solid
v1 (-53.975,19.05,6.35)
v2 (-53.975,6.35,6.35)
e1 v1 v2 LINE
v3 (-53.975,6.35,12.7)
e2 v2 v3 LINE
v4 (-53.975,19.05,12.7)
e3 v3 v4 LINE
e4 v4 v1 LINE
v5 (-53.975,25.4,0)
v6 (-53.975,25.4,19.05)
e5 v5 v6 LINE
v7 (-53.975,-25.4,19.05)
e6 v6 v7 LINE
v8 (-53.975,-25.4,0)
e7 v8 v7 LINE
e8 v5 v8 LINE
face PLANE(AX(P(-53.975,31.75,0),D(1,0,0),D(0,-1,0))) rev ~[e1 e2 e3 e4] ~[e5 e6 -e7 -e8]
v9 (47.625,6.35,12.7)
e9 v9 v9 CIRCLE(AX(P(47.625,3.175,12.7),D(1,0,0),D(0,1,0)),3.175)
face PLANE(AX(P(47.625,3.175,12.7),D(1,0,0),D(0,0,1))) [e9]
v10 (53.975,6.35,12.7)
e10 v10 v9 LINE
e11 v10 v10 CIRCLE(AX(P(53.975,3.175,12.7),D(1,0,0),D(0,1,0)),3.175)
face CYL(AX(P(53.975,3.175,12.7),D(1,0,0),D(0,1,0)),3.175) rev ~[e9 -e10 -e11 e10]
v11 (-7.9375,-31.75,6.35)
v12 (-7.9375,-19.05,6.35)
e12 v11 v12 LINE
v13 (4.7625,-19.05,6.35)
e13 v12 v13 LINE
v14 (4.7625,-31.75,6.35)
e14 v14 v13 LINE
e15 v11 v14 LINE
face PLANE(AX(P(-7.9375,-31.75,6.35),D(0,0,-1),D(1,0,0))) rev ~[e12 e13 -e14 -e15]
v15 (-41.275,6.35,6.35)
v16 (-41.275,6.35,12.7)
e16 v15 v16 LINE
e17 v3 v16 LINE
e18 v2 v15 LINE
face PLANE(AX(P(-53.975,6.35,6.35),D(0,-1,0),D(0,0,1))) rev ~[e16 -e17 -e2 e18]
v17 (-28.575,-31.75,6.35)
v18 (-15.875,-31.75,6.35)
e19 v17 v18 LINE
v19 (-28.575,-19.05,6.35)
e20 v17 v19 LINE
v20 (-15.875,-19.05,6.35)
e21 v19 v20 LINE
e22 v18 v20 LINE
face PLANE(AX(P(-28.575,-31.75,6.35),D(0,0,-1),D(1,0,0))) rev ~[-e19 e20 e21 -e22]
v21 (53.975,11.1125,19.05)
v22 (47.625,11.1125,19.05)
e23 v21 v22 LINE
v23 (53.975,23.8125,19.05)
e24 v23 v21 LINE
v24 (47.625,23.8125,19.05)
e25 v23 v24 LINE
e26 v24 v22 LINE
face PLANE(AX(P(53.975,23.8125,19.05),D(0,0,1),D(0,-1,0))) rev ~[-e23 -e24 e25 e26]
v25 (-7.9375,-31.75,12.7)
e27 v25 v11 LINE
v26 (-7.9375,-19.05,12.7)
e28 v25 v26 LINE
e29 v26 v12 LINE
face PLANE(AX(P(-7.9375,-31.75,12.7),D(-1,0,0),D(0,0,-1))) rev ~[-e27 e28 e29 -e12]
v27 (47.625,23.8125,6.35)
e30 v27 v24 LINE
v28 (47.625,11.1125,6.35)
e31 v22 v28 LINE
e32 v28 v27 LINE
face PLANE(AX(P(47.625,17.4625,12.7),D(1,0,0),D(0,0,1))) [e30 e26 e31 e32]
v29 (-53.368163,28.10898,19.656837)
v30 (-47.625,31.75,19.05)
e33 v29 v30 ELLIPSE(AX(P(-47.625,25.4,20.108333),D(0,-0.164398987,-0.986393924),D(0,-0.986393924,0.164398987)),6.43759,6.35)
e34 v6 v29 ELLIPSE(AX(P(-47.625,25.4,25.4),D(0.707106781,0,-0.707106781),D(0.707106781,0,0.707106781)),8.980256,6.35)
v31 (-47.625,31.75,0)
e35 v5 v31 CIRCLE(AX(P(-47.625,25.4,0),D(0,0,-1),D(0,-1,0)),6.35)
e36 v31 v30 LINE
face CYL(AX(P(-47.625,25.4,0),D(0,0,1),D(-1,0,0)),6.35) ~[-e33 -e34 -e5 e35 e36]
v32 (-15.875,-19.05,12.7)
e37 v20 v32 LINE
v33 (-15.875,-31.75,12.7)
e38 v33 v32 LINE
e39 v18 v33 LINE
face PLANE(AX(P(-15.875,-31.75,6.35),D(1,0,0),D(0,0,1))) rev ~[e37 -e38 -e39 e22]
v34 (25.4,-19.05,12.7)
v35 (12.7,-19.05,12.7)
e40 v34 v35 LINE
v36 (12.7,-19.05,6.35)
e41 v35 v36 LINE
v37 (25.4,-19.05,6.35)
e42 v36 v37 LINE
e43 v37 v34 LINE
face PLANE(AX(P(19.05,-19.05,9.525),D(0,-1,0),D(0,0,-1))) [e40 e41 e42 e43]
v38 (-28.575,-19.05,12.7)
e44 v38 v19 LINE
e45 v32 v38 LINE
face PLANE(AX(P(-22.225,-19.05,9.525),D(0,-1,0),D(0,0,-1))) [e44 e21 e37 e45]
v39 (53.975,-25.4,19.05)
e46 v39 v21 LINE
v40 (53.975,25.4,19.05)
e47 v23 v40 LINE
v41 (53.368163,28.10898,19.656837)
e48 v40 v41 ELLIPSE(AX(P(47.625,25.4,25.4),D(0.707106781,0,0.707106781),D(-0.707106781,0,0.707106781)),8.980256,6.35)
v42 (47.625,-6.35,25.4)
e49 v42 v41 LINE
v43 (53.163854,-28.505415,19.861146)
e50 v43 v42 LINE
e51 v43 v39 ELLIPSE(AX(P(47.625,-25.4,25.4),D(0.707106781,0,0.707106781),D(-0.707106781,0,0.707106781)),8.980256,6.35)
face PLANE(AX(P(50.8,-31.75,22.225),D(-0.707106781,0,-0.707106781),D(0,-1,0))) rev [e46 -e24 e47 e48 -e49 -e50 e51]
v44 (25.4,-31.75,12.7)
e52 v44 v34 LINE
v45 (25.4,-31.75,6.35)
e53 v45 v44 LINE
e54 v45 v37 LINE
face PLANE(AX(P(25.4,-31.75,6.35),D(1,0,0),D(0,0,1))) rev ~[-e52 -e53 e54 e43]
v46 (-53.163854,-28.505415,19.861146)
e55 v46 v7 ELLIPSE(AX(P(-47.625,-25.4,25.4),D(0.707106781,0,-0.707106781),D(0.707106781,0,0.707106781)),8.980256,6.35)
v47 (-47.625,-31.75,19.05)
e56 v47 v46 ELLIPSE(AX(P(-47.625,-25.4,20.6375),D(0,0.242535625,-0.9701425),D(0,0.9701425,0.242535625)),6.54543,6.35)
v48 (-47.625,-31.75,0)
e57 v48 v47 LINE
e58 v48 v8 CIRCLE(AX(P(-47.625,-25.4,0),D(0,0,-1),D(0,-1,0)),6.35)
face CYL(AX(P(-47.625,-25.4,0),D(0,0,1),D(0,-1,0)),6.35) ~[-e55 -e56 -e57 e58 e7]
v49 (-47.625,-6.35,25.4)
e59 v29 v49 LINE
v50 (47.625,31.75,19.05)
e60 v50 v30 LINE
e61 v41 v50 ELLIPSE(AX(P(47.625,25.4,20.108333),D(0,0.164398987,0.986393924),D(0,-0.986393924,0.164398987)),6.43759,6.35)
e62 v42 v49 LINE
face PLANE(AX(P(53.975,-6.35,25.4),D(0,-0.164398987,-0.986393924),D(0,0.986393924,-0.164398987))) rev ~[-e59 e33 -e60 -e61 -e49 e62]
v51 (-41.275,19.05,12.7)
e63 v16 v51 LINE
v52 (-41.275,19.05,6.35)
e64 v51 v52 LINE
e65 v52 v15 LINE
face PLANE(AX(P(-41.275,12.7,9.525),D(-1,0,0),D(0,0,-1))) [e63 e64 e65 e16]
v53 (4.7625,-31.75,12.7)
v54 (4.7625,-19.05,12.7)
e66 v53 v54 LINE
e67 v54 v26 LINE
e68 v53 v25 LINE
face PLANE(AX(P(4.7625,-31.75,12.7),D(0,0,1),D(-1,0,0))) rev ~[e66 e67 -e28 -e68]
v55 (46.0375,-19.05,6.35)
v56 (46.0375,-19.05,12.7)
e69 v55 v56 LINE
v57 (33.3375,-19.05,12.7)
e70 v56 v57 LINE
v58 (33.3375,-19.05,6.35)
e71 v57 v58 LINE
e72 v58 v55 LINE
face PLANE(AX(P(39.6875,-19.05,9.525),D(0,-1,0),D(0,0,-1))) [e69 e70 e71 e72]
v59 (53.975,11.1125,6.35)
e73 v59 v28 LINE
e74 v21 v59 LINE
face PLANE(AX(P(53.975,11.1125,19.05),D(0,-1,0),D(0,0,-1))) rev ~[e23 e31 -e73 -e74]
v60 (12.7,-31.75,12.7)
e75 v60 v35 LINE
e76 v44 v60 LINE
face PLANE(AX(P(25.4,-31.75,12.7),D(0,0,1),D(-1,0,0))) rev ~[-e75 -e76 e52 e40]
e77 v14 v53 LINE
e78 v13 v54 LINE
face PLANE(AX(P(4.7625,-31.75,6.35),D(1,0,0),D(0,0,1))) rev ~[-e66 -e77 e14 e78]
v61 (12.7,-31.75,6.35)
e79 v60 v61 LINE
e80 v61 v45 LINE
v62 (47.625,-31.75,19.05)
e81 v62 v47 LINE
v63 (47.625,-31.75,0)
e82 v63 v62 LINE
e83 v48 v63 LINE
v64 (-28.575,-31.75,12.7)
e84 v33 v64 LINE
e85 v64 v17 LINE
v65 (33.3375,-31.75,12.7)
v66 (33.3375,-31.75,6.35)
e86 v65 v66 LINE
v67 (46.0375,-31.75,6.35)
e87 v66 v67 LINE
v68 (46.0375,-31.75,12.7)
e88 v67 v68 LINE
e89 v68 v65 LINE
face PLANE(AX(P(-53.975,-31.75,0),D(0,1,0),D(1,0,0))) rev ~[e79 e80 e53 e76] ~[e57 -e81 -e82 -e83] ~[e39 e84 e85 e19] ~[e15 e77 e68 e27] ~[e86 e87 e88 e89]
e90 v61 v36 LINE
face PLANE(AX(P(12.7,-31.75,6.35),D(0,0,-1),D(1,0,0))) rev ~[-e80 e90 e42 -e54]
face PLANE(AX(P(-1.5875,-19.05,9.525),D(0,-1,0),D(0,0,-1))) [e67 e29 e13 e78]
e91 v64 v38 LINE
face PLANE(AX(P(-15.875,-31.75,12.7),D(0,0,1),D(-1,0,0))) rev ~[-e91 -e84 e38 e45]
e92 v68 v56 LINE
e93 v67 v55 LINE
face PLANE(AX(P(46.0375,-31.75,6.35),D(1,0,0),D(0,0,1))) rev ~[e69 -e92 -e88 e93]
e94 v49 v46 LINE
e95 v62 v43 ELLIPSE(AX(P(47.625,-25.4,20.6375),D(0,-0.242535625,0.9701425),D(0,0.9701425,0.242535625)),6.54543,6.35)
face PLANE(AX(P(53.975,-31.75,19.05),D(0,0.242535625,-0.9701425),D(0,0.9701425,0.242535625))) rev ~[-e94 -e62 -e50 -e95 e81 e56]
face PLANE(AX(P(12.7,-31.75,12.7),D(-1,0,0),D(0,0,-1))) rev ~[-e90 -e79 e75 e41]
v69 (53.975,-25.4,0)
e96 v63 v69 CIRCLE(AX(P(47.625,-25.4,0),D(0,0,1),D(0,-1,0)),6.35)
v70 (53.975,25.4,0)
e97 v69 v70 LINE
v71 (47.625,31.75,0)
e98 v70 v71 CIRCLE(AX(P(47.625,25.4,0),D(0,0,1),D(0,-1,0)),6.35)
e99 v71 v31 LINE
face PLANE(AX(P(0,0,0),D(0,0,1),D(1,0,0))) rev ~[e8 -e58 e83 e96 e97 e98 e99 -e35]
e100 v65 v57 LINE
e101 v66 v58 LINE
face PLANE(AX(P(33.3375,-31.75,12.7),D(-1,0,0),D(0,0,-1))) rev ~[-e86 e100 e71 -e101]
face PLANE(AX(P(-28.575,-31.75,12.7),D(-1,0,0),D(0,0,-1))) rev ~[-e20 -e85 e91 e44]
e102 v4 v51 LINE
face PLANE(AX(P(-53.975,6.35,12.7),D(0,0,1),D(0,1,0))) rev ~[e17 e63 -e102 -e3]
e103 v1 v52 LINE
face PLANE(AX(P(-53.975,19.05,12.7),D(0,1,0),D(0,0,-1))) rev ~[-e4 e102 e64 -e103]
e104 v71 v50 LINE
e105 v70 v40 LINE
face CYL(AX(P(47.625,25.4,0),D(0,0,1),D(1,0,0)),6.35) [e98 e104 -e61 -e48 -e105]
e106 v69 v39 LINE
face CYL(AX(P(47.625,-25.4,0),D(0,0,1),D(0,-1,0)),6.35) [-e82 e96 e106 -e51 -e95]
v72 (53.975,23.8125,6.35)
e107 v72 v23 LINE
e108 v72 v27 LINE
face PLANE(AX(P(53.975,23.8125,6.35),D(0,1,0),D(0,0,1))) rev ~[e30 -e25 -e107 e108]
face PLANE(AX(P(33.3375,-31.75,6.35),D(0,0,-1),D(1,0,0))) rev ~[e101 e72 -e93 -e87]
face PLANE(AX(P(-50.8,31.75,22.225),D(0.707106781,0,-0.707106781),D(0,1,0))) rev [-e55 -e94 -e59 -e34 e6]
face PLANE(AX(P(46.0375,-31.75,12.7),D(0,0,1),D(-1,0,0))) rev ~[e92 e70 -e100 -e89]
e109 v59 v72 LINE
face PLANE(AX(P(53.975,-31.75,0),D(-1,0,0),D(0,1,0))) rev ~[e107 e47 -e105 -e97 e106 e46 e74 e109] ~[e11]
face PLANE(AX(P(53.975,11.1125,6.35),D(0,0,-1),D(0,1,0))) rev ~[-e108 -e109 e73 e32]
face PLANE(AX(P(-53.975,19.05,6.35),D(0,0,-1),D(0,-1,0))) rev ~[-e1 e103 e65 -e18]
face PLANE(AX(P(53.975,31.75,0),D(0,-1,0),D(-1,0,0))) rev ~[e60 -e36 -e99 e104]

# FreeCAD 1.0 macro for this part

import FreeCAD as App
import Part
import Sketcher
Q = App.Units.Quantity


def edges_at(feature, points):
    """Names of the edges that pass closest to the given points."""
    edges = feature.Shape.Edges
    near = lambda p: min(range(len(edges)), key=lambda i: edges[i].distToShape(Part.Vertex(*p))[0])
    return sorted({f"Edge{near(p) + 1}" for p in points})

doc = App.newDocument("Part")
body = doc.addObject("PartDesign::Body", "Body")

sketch1 = doc.addObject("Sketcher::SketchObject", "Sketch")
body.addObject(sketch1)
sketch1.AttachmentSupport = (doc.XY_Plane, [""])
sketch1.MapMode = "FlatFace"
sketch1.addGeometry([
    Part.LineSegment(App.Vector(-54, 32, 0), App.Vector(-54, -32, 0)),
    Part.LineSegment(App.Vector(-54, -32, 0), App.Vector(54, -32, 0)),
    Part.LineSegment(App.Vector(54, -32, 0), App.Vector(54, 32, 0)),
    Part.LineSegment(App.Vector(54, 32, 0), App.Vector(-54, 32, 0)),
], False)
sketch1.addConstraint([
    Sketcher.Constraint("Coincident", 0, 2, 1, 1),
    Sketcher.Constraint("Coincident", 1, 2, 2, 1),
    Sketcher.Constraint("Coincident", 2, 2, 3, 1),
    Sketcher.Constraint("Coincident", 3, 2, 0, 1),
    Sketcher.Constraint("Vertical", 0),
    Sketcher.Constraint("Horizontal", 1),
    Sketcher.Constraint("Vertical", 2),
    Sketcher.Constraint("Horizontal", 3),
    Sketcher.Constraint("Symmetric", 0, 2, 2, 2, -1, 1),
    Sketcher.Constraint("DistanceY", 0, 2, 0, 1, Q("2.5 in")),
    Sketcher.Constraint("DistanceX", 0, 2, -1, 1, Q("2.125 in")),
])
pad1 = doc.addObject("PartDesign::Pad", "Pad")
body.addObject(pad1)
pad1.Profile = sketch1
pad1.Length = Q("1 in")
doc.recompute()

chamfer = doc.addObject("PartDesign::Chamfer", "Chamfer")
body.addObject(chamfer)
chamfer.Base = (pad1, edges_at(pad1, [(-53.975, 0, 25.4), (53.975, 0, 25.4)]))
chamfer.Size = Q("0.25 in")

sketch2 = doc.addObject("Sketcher::SketchObject", "Sketch001")
body.addObject(sketch2)
sketch2.AttachmentSupport = (doc.YZ_Plane, [""])
sketch2.MapMode = "FlatFace"
sketch2.AttachmentOffset = App.Placement(App.Vector(0, 0, 2.125 * 25.4), App.Rotation())
sketch2.addGeometry([
    Part.LineSegment(App.Vector(-32, 19, 0), App.Vector(-6, 25, 0)),
    Part.LineSegment(App.Vector(-6, 25, 0), App.Vector(-32, 25, 0)),
    Part.LineSegment(App.Vector(-32, 25, 0), App.Vector(-32, 19, 0)),
    Part.LineSegment(App.Vector(32, 25, 0), App.Vector(-6, 25, 0)),
    Part.LineSegment(App.Vector(-6, 25, 0), App.Vector(32, 19, 0)),
    Part.LineSegment(App.Vector(32, 19, 0), App.Vector(32, 25, 0)),
], False)
sketch2.addConstraint([
    Sketcher.Constraint("Coincident", 0, 2, 1, 1),
    Sketcher.Constraint("Coincident", 1, 2, 2, 1),
    Sketcher.Constraint("Coincident", 2, 2, 0, 1),
    Sketcher.Constraint("Coincident", 3, 2, 4, 1),
    Sketcher.Constraint("Coincident", 4, 2, 5, 1),
    Sketcher.Constraint("Coincident", 5, 2, 3, 1),
    Sketcher.Constraint("Horizontal", 1),
    Sketcher.Constraint("Vertical", 2),
    Sketcher.Constraint("Horizontal", 3),
    Sketcher.Constraint("Vertical", 5),
    Sketcher.Constraint("Coincident", 3, 2, 0, 2),
    Sketcher.Constraint("Symmetric", 2, 2, 4, 2, -2),
    Sketcher.Constraint("DistanceX", 1, 2, 1, 1, Q("1 in")),
    Sketcher.Constraint("DistanceX", 3, 2, 3, 1, Q("1.5 in")),
    Sketcher.Constraint("DistanceY", -1, 1, 0, 2, Q("1 in")),
    Sketcher.Constraint("DistanceY", 2, 2, 2, 1, Q("0.25 in")),
])
pocket1 = doc.addObject("PartDesign::Pocket", "Pocket")
body.addObject(pocket1)
pocket1.Profile = sketch2
pocket1.Type = "ThroughAll"
doc.recompute()

fillet = doc.addObject("PartDesign::Fillet", "Fillet")
body.addObject(fillet)
fillet.Base = (pocket1, edges_at(pocket1, [
    (53.975, -31.75, 9.525),
    (53.975, 31.75, 9.525),
    (-53.975, 31.75, 9.525),
    (-53.975, -31.75, 9.525),
]))
fillet.Radius = Q("0.25 in")

sketch3 = doc.addObject("Sketcher::SketchObject", "Sketch002")
body.addObject(sketch3)
sketch3.AttachmentSupport = (doc.YZ_Plane, [""])
sketch3.MapMode = "FlatFace"
sketch3.AttachmentOffset = App.Placement(App.Vector(0, 0, -2.125 * 25.4), App.Rotation())
sketch3.addGeometry([
    Part.LineSegment(App.Vector(19, 13, 0), App.Vector(19, 6, 0)),
    Part.LineSegment(App.Vector(19, 6, 0), App.Vector(6, 6, 0)),
    Part.LineSegment(App.Vector(6, 6, 0), App.Vector(6, 13, 0)),
    Part.LineSegment(App.Vector(6, 13, 0), App.Vector(19, 13, 0)),
], False)
sketch3.addConstraint([
    Sketcher.Constraint("Coincident", 0, 2, 1, 1),
    Sketcher.Constraint("Coincident", 1, 2, 2, 1),
    Sketcher.Constraint("Coincident", 2, 2, 3, 1),
    Sketcher.Constraint("Coincident", 3, 2, 0, 1),
    Sketcher.Constraint("Vertical", 0),
    Sketcher.Constraint("Horizontal", 1),
    Sketcher.Constraint("Vertical", 2),
    Sketcher.Constraint("Horizontal", 3),
    Sketcher.Constraint("DistanceY", 0, 2, 0, 1, Q("0.25 in")),
    Sketcher.Constraint("DistanceY", -1, 1, 0, 2, Q("0.25 in")),
    Sketcher.Constraint("DistanceX", -1, 1, 1, 2, Q("0.25 in")),
    Sketcher.Constraint("DistanceX", 1, 2, 1, 1, Q("0.5 in")),
])
pocket2 = doc.addObject("PartDesign::Pocket", "Pocket001")
body.addObject(pocket2)
pocket2.Profile = sketch3
pocket2.Length = Q("0.5 in")
pocket2.Reversed = True

sketch4 = doc.addObject("Sketcher::SketchObject", "Sketch003")
body.addObject(sketch4)
sketch4.AttachmentSupport = (doc.XZ_Plane, [""])
sketch4.MapMode = "FlatFace"
sketch4.AttachmentOffset = App.Placement(App.Vector(0, 0, 1.25 * 25.4), App.Rotation())
sketch4.addGeometry([
    Part.LineSegment(App.Vector(-29, 13, 0), App.Vector(-29, 6, 0)),
    Part.LineSegment(App.Vector(-29, 6, 0), App.Vector(-16, 6, 0)),
    Part.LineSegment(App.Vector(-16, 6, 0), App.Vector(-16, 13, 0)),
    Part.LineSegment(App.Vector(-16, 13, 0), App.Vector(-29, 13, 0)),
    Part.LineSegment(App.Vector(-8, 13, 0), App.Vector(-8, 6, 0)),
    Part.LineSegment(App.Vector(-8, 6, 0), App.Vector(5, 6, 0)),
    Part.LineSegment(App.Vector(5, 6, 0), App.Vector(5, 13, 0)),
    Part.LineSegment(App.Vector(5, 13, 0), App.Vector(-8, 13, 0)),
    Part.LineSegment(App.Vector(13, 13, 0), App.Vector(13, 6, 0)),
    Part.LineSegment(App.Vector(13, 6, 0), App.Vector(25, 6, 0)),
    Part.LineSegment(App.Vector(25, 6, 0), App.Vector(25, 13, 0)),
    Part.LineSegment(App.Vector(25, 13, 0), App.Vector(13, 13, 0)),
    Part.LineSegment(App.Vector(33, 13, 0), App.Vector(33, 6, 0)),
    Part.LineSegment(App.Vector(33, 6, 0), App.Vector(46, 6, 0)),
    Part.LineSegment(App.Vector(46, 6, 0), App.Vector(46, 13, 0)),
    Part.LineSegment(App.Vector(46, 13, 0), App.Vector(33, 13, 0)),
], False)
sketch4.addConstraint([
    Sketcher.Constraint("Coincident", 0, 2, 1, 1),
    Sketcher.Constraint("Coincident", 1, 2, 2, 1),
    Sketcher.Constraint("Coincident", 2, 2, 3, 1),
    Sketcher.Constraint("Coincident", 3, 2, 0, 1),
    Sketcher.Constraint("Coincident", 4, 2, 5, 1),
    Sketcher.Constraint("Coincident", 5, 2, 6, 1),
    Sketcher.Constraint("Coincident", 6, 2, 7, 1),
    Sketcher.Constraint("Coincident", 7, 2, 4, 1),
    Sketcher.Constraint("Coincident", 8, 2, 9, 1),
    Sketcher.Constraint("Coincident", 9, 2, 10, 1),
    Sketcher.Constraint("Coincident", 10, 2, 11, 1),
    Sketcher.Constraint("Coincident", 11, 2, 8, 1),
    Sketcher.Constraint("Coincident", 12, 2, 13, 1),
    Sketcher.Constraint("Coincident", 13, 2, 14, 1),
    Sketcher.Constraint("Coincident", 14, 2, 15, 1),
    Sketcher.Constraint("Coincident", 15, 2, 12, 1),
    Sketcher.Constraint("Vertical", 0),
    Sketcher.Constraint("Horizontal", 1),
    Sketcher.Constraint("Vertical", 2),
    Sketcher.Constraint("Horizontal", 3),
    Sketcher.Constraint("Vertical", 4),
    Sketcher.Constraint("Horizontal", 5),
    Sketcher.Constraint("Vertical", 6),
    Sketcher.Constraint("Horizontal", 7),
    Sketcher.Constraint("Vertical", 8),
    Sketcher.Constraint("Horizontal", 9),
    Sketcher.Constraint("Vertical", 10),
    Sketcher.Constraint("Horizontal", 11),
    Sketcher.Constraint("Vertical", 12),
    Sketcher.Constraint("Horizontal", 13),
    Sketcher.Constraint("Vertical", 14),
    Sketcher.Constraint("Horizontal", 15),
    Sketcher.Constraint("Horizontal", 1, 2, 4, 2),
    Sketcher.Constraint("Horizontal", 3, 2, 6, 2),
    Sketcher.Constraint("Horizontal", 5, 2, 8, 2),
    Sketcher.Constraint("Horizontal", 7, 2, 10, 2),
    Sketcher.Constraint("Horizontal", 9, 2, 12, 2),
    Sketcher.Constraint("Horizontal", 11, 2, 14, 2),
    Sketcher.Constraint("Equal", 3, 5),
    Sketcher.Constraint("Equal", 7, 9),
    Sketcher.Constraint("Equal", 11, 13),
    Sketcher.Constraint("DistanceX", 1, 1, 1, 2, Q("0.5 in")),
    Sketcher.Constraint("DistanceX", 0, 2, -1, 1, Q("1.125 in")),
    Sketcher.Constraint("DistanceX", -1, 1, 9, 2, Q("1 in")),
    Sketcher.Constraint("DistanceX", 5, 2, 12, 2, Q("1.125 in")),
    Sketcher.Constraint("DistanceY", 0, 2, 0, 1, Q("0.25 in")),
    Sketcher.Constraint("DistanceY", -1, 1, 2, 2, Q("0.5 in")),
    Sketcher.Constraint("DistanceX", 4, 2, -1, 1, Q("0.3125 in")),
])
pocket3 = doc.addObject("PartDesign::Pocket", "Pocket002")
body.addObject(pocket3)
pocket3.Profile = sketch4
pocket3.Length = Q("0.5 in")

sketch5 = doc.addObject("Sketcher::SketchObject", "Sketch004")
body.addObject(sketch5)
sketch5.AttachmentSupport = (doc.YZ_Plane, [""])
sketch5.MapMode = "FlatFace"
sketch5.AttachmentOffset = App.Placement(App.Vector(0, 0, 2.125 * 25.4), App.Rotation())
sketch5.addGeometry([
    Part.Circle(App.Vector(3.2, 12.7, 0), App.Vector(0, 0, 1), 3.2),
    Part.LineSegment(App.Vector(11.1, 19.1, 0), App.Vector(11.1, 6.3, 0)),
    Part.LineSegment(App.Vector(11.1, 6.3, 0), App.Vector(23.8, 6.3, 0)),
    Part.LineSegment(App.Vector(23.8, 6.3, 0), App.Vector(23.8, 19.1, 0)),
    Part.LineSegment(App.Vector(23.8, 19.1, 0), App.Vector(11.1, 19.1, 0)),
], False)
sketch5.addConstraint([
    Sketcher.Constraint("Coincident", 1, 2, 2, 1),
    Sketcher.Constraint("Coincident", 2, 2, 3, 1),
    Sketcher.Constraint("Coincident", 3, 2, 4, 1),
    Sketcher.Constraint("Coincident", 4, 2, 1, 1),
    Sketcher.Constraint("Vertical", 1),
    Sketcher.Constraint("Horizontal", 2),
    Sketcher.Constraint("Vertical", 3),
    Sketcher.Constraint("Horizontal", 4),
    Sketcher.Constraint("Equal", 4, 1),
    Sketcher.Constraint("Diameter", 0, Q("0.25 in")),
    Sketcher.Constraint("DistanceX", 2, 1, 2, 2, Q("0.5 in")),
    Sketcher.Constraint("DistanceY", -1, 1, 0, 3, Q("0.5 in")),
    Sketcher.Constraint("DistanceY", -1, 1, 1, 2, Q("0.25 in")),
    Sketcher.Constraint("DistanceX", -1, 1, 0, 3, Q("0.125 in")),
    Sketcher.Constraint("DistanceX", -1, 1, 1, 2, Q("0.4375 in")),
])
pocket4 = doc.addObject("PartDesign::Pocket", "Pocket003")
body.addObject(pocket4)
pocket4.Profile = sketch5
pocket4.Length = Q("0.25 in")

doc.recompute()
